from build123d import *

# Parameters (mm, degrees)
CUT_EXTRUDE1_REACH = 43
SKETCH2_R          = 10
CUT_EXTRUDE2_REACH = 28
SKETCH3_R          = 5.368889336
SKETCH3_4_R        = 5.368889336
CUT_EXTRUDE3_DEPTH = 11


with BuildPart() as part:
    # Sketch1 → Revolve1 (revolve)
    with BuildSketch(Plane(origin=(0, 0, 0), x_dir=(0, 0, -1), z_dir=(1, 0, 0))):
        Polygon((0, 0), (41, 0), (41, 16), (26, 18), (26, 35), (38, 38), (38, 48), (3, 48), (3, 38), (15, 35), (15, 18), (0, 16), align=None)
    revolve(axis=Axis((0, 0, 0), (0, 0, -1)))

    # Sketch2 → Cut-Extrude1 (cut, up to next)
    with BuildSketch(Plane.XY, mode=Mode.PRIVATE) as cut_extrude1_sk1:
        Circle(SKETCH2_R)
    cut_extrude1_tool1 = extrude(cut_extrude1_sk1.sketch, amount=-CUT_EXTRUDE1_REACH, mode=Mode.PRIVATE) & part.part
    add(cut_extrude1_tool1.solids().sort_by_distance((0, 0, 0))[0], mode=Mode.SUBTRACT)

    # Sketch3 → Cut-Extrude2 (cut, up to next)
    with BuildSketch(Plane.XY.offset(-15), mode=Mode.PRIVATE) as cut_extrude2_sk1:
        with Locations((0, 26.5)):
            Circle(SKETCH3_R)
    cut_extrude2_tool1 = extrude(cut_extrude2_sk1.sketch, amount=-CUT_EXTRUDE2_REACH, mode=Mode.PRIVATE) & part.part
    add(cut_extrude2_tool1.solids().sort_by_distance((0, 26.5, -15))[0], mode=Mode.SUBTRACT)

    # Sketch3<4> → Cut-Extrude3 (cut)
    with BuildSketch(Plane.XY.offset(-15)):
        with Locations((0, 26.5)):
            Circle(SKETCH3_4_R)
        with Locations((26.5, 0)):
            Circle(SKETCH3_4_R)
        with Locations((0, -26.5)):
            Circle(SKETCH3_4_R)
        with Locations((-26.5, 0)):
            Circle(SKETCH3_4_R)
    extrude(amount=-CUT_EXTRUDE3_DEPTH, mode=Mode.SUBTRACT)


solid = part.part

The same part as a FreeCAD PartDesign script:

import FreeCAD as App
import Part
import Sketcher
from FreeCAD import Vector
Q = App.Units.Quantity

doc = App.newDocument("Part")
body = doc.addObject("PartDesign::Body", "Body")

# Sketch on YZ plane
sketch1 = body.newObject("Sketcher::SketchObject", "Sketch")
sketch1.AttachmentSupport = (doc.getObject("YZ_Plane"), [""])
sketch1.MapMode = "FlatFace"
sketch1.addGeometry([
    Part.LineSegment(Vector(0, 0, 0), Vector(0, -41, 0)),  # 0
    Part.LineSegment(Vector(0, -41, 0), Vector(16, -41, 0)),  # 1
    Part.LineSegment(Vector(16, -41, 0), Vector(18, -26, 0)),  # 2
    Part.LineSegment(Vector(18, -26, 0), Vector(35, -26, 0)),  # 3
    Part.LineSegment(Vector(35, -26, 0), Vector(38, -38, 0)),  # 4
    Part.LineSegment(Vector(38, -38, 0), Vector(48, -38, 0)),  # 5
    Part.LineSegment(Vector(48, -38, 0), Vector(48, -3, 0)),  # 6
    Part.LineSegment(Vector(48, -3, 0), Vector(38, -3, 0)),  # 7
    Part.LineSegment(Vector(38, -3, 0), Vector(35, -15, 0)),  # 8
    Part.LineSegment(Vector(35, -15, 0), Vector(18, -15, 0)),  # 9
    Part.LineSegment(Vector(18, -15, 0), Vector(16, 0, 0)),  # 10
    Part.LineSegment(Vector(16, 0, 0), Vector(0, 0, 0)),  # 11
], False)
sketch1.addConstraint([
    Sketcher.Constraint("Coincident", 0, 2, 1, 1),
    Sketcher.Constraint("Coincident", 1, 2, 2, 1),
    Sketcher.Constraint("Coincident", 2, 2, 3, 1),
    Sketcher.Constraint("Coincident", 3, 2, 4, 1),
    Sketcher.Constraint("Coincident", 4, 2, 5, 1),
    Sketcher.Constraint("Coincident", 5, 2, 6, 1),
    Sketcher.Constraint("Coincident", 6, 2, 7, 1),
    Sketcher.Constraint("Coincident", 7, 2, 8, 1),
    Sketcher.Constraint("Coincident", 8, 2, 9, 1),
    Sketcher.Constraint("Coincident", 9, 2, 10, 1),
    Sketcher.Constraint("Coincident", 10, 2, 11, 1),
    Sketcher.Constraint("Coincident", 11, 2, 0, 1),
    Sketcher.Constraint("Vertical", 0),
    Sketcher.Constraint("Horizontal", 1),
    Sketcher.Constraint("Horizontal", 3),
    Sketcher.Constraint("Horizontal", 5),
    Sketcher.Constraint("Vertical", 6),
    Sketcher.Constraint("Horizontal", 7),
    Sketcher.Constraint("Horizontal", 9),
    Sketcher.Constraint("Horizontal", 11),
    Sketcher.Constraint("Coincident", 11, 2, -1, 1),
    Sketcher.Constraint("Vertical", 4, 2, 7, 2),
    Sketcher.Constraint("Vertical", 3, 2, 8, 2),
    Sketcher.Constraint("Vertical", 2, 2, 9, 2),
    Sketcher.Constraint("Vertical", 1, 2, 10, 2),
    Sketcher.Constraint("Equal", 4, 8),
    Sketcher.Constraint("Equal", 2, 10),
    Sketcher.Constraint("DistanceX", 1, 1, 1, 2, Q("16 mm")),
    Sketcher.Constraint("DistanceX", 3, 1, 3, 2, Q("17 mm")),
    Sketcher.Constraint("DistanceX", 5, 1, 5, 2, Q("10 mm")),
    Sketcher.Constraint("DistanceY", 0, 2, 0, 1, Q("41 mm")),
    Sketcher.Constraint("DistanceY", 6, 1, 6, 2, Q("35 mm")),
    Sketcher.Constraint("DistanceX", -1, 1, 2, 2, Q("18 mm")),
    Sketcher.Constraint("DistanceY", 2, 2, -1, 1, Q("26 mm")),
    Sketcher.Constraint("DistanceX", -1, 1, 4, 2, Q("38 mm")),
])
revolution = body.newObject("PartDesign::Revolution", "Revolution")
revolution.Profile = sketch1
revolution.ReferenceAxis = (sketch1, ["V_Axis"])
revolution.Angle = 360

# Sketch on XY plane
sketch2 = body.newObject("Sketcher::SketchObject", "Sketch001")
sketch2.AttachmentSupport = (doc.getObject("XY_Plane"), [""])
sketch2.MapMode = "FlatFace"
sketch2.addGeometry(Part.Circle(Vector(0, 0, 0), Vector(0, 0, 1), 10), False)
sketch2.addConstraint([
    Sketcher.Constraint("Coincident", 0, 3, -1, 1),
    Sketcher.Constraint("Diameter", 0, Q("20 mm")),
])
pocket1 = body.newObject("PartDesign::Pocket", "Pocket")
pocket1.Profile = sketch2
pocket1.Type = "UpToFirst"

# Sketch on XY plane
sketch3 = body.newObject("Sketcher::SketchObject", "Sketch002")
sketch3.AttachmentSupport = (doc.getObject("XY_Plane"), [""])
sketch3.MapMode = "FlatFace"
sketch3.AttachmentOffset = App.Placement(Vector(0, 0, -15), App.Rotation())
sketch3.addGeometry(Part.Circle(Vector(0, 26, 0), Vector(0, 0, 1), 5), False)
sketch3.addConstraint([
    Sketcher.Constraint("PointOnObject", 0, 3, -2),
    Sketcher.Constraint("DistanceY", -1, 1, 0, 3, Q("26.5 mm")),
    Sketcher.Constraint("Diameter", 0, Q("10.737779 mm")),
])
pocket2 = body.newObject("PartDesign::Pocket", "Pocket001")
pocket2.Profile = sketch3
pocket2.Type = "UpToFirst"

# Sketch on XY plane
sketch4 = body.newObject("Sketcher::SketchObject", "Sketch003")
sketch4.AttachmentSupport = (doc.getObject("XY_Plane"), [""])
sketch4.MapMode = "FlatFace"
sketch4.AttachmentOffset = App.Placement(Vector(0, 0, -15), App.Rotation())
sketch4.addGeometry([
    Part.Circle(Vector(0, 26, 0), Vector(0, 0, 1), 5),
    Part.Circle(Vector(26, 0, 0), Vector(0, 0, 1), 5),
    Part.Circle(Vector(0, -26, 0), Vector(0, 0, 1), 5),
    Part.Circle(Vector(-26, 0, 0), Vector(0, 0, 1), 5),
], False)
sketch4.addConstraint([
    Sketcher.Constraint("Equal", 0, 1),
    Sketcher.Constraint("Equal", 1, 2),
    Sketcher.Constraint("Equal", 2, 3),
    Sketcher.Constraint("Symmetric", 0, 3, 2, 3, -1, 1),
    Sketcher.Constraint("Symmetric", 1, 3, 3, 3, -1, 1),
    Sketcher.Constraint("PointOnObject", 0, 3, -2),
    Sketcher.Constraint("PointOnObject", 1, 3, -1),
    Sketcher.Constraint("DistanceY", 2, 3, 0, 3, Q("53 mm")),
    Sketcher.Constraint("DistanceX", 3, 3, 1, 3, Q("53 mm")),
    Sketcher.Constraint("Diameter", 0, Q("10.737779 mm")),
])
pocket3 = body.newObject("PartDesign::Pocket", "Pocket002")
pocket3.Profile = sketch4
pocket3.Length = 11

doc.recompute()
